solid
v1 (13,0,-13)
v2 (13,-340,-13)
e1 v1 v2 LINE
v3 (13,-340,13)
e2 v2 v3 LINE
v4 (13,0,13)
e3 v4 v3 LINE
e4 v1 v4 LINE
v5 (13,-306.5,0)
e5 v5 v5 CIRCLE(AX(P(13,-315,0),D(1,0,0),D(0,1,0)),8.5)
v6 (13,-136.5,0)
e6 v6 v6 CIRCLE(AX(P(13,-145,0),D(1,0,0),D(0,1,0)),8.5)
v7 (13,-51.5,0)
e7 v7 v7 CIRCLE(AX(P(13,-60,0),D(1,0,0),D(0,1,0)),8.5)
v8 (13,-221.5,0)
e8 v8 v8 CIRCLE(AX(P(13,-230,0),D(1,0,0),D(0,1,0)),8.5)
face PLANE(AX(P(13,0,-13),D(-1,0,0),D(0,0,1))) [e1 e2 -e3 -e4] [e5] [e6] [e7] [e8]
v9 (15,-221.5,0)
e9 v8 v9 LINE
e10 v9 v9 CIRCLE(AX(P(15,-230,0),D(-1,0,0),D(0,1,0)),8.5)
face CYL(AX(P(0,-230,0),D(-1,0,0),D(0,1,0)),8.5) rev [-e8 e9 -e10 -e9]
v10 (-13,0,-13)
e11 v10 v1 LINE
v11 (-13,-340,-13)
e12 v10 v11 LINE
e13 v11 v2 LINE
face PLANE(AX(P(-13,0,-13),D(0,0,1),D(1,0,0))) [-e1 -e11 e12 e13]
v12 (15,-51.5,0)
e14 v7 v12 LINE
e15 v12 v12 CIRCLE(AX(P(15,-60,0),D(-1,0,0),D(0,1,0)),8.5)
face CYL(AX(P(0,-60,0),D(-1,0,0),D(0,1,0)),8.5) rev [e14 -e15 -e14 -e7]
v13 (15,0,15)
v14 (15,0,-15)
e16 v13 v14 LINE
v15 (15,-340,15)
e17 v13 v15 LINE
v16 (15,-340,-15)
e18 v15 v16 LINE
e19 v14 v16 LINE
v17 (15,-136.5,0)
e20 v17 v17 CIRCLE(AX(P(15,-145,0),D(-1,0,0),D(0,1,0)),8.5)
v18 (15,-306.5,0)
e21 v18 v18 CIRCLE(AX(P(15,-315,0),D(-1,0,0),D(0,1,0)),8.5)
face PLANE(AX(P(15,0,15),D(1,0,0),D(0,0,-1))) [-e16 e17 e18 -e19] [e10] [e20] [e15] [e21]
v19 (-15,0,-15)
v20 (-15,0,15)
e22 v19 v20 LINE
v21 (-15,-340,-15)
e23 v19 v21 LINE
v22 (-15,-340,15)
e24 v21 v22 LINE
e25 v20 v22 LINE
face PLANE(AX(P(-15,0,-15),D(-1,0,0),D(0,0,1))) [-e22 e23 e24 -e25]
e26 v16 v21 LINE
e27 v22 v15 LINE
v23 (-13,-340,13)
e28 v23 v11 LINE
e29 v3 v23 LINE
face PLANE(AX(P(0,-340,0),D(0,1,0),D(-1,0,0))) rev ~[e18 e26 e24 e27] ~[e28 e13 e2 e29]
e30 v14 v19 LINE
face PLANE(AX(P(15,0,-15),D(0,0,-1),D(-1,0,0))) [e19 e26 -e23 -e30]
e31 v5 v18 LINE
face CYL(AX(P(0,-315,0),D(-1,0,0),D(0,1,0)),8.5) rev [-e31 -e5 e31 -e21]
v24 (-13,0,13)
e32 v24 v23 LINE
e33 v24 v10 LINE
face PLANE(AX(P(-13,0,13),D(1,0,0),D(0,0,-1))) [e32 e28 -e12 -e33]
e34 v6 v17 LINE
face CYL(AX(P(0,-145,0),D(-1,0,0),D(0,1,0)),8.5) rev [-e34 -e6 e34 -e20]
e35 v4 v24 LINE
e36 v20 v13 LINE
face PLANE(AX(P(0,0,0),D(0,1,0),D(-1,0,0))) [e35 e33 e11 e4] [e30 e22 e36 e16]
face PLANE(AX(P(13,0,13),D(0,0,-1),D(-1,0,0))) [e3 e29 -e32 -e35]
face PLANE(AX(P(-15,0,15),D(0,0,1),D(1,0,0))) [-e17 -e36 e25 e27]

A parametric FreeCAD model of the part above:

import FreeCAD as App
import Part
import Sketcher
from FreeCAD import Vector


def add_polygon(sketch, points):
    """Adds a closed chain of lines whose ends are joined by coincident constraints."""
    first, n = sketch.GeometryCount, len(points)
    for a, b in zip(points, points[1:] + points[:1]):
        sketch.addGeometry(Part.LineSegment(App.Vector(*a, 0), App.Vector(*b, 0)), False)
    for i in range(n):
        sketch.addConstraint(Sketcher.Constraint("Coincident", first + i, 2, first + (i + 1) % n, 1))

doc = App.newDocument("Part")
body = doc.addObject("PartDesign::Body", "Body")

# Sketch on XZ plane
sketch1 = body.newObject("Sketcher::SketchObject", "Sketch")
sketch1.AttachmentSupport = (doc.getObject("XZ_Plane"), [""])
sketch1.MapMode = "FlatFace"
add_polygon(sketch1, [(-15, -15), (-15, 15), (15, 15), (15, -15)])  # lines 0-3
add_polygon(sketch1, [(13, -13), (13, 13), (-13, 13), (-13, -13)])  # lines 4-7
sketch1.addConstraint(Sketcher.Constraint("Vertical", 0))
sketch1.addConstraint(Sketcher.Constraint("Horizontal", 1))
sketch1.addConstraint(Sketcher.Constraint("Vertical", 2))
sketch1.addConstraint(Sketcher.Constraint("Horizontal", 3))
sketch1.addConstraint(Sketcher.Constraint("Vertical", 4))
sketch1.addConstraint(Sketcher.Constraint("Horizontal", 5))
sketch1.addConstraint(Sketcher.Constraint("Vertical", 6))
sketch1.addConstraint(Sketcher.Constraint("Horizontal", 7))
sketch1.addConstraint(Sketcher.Constraint("Symmetric", 0, 2, 2, 2, -1, 1))
sketch1.addConstraint(Sketcher.Constraint("Symmetric", 4, 2, 6, 2, -1, 1))
sketch1.addConstraint(Sketcher.Constraint("Equal", 3, 0))
sketch1.addConstraint(Sketcher.Constraint("Equal", 7, 4))
sketch1.addConstraint(Sketcher.Constraint("DistanceX", 1, 1, 1, 2, 30.0))
sketch1.addConstraint(Sketcher.Constraint("DistanceX", 4, 2, 1, 2, 2.0))
pad1 = body.newObject("PartDesign::Pad", "Pad")
pad1.Profile = sketch1
pad1.Length = 340

# Sketch on YZ plane
sketch2 = body.newObject("Sketcher::SketchObject", "Sketch001")
sketch2.AttachmentSupport = (doc.getObject("YZ_Plane"), [""])
sketch2.MapMode = "FlatFace"
sketch2.addGeometry(Part.Circle(Vector(-60, 0, 0), Vector(0, 0, 1), 8), False)
sketch2.addConstraint(Sketcher.Constraint("PointOnObject", 0, 3, -1))
sketch2.addConstraint(Sketcher.Constraint("Diameter", 0, 17.0))
sketch2.addConstraint(Sketcher.Constraint("DistanceX", 0, 3, -1, 1, 60.0))
pocket1 = body.newObject("PartDesign::Pocket", "Pocket")
pocket1.Profile = sketch2
pocket1.Type = "ThroughAll"
pocket1.Reversed = True
doc.recompute()

linearpattern = body.newObject("PartDesign::LinearPattern", "LinearPattern")
linearpattern.Originals = [pocket1]
linearpattern.Direction = (doc.getObject("Y_Axis"), [""])
linearpattern.Mode = "offset"
linearpattern.Offset = 85
linearpattern.Occurrences = 4
linearpattern.Reversed = True
body.Tip = linearpattern

doc.recompute()
